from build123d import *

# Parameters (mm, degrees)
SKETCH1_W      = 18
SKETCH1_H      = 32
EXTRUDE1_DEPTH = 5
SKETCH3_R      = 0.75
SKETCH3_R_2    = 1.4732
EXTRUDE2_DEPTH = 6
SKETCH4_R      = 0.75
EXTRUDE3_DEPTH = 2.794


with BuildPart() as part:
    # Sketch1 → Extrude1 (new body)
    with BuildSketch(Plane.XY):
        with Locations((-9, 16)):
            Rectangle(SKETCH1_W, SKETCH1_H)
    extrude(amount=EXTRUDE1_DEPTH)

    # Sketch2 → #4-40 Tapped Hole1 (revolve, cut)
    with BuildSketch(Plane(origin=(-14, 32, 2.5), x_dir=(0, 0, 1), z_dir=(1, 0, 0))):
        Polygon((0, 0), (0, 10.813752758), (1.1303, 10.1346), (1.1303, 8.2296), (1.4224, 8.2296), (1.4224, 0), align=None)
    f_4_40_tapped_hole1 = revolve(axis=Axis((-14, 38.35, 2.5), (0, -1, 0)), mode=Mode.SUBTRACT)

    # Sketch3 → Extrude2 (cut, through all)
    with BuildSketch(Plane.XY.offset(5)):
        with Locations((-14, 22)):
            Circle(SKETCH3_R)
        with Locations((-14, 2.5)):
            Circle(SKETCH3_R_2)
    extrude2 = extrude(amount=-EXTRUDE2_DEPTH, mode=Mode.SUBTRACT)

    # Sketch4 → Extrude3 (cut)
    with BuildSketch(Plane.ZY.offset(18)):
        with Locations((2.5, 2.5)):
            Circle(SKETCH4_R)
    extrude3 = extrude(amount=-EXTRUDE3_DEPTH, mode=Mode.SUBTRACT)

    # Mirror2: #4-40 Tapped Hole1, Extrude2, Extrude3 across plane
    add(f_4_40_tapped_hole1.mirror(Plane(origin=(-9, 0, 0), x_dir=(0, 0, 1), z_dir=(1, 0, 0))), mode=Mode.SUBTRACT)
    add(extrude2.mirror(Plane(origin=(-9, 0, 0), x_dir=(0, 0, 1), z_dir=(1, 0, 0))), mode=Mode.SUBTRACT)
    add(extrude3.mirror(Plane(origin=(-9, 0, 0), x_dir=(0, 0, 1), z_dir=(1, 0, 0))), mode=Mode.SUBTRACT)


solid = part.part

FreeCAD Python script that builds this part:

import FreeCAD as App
import Part
import Sketcher
from FreeCAD import Vector
Q = App.Units.Quantity

doc = App.newDocument("Part")
body = doc.addObject("PartDesign::Body", "Body")

# Sketch on XY plane
sketch1 = body.newObject("Sketcher::SketchObject", "Sketch")
sketch1.AttachmentSupport = (doc.getObject("XY_Plane"), [""])
sketch1.MapMode = "FlatFace"
sketch1.addGeometry(Part.LineSegment(Vector(-18, 32, 0), Vector(-18, 0, 0)), False)
sketch1.addGeometry(Part.LineSegment(Vector(-18, 0, 0), Vector(0, 0, 0)), False)
sketch1.addGeometry(Part.LineSegment(Vector(0, 0, 0), Vector(0, 32, 0)), False)
sketch1.addGeometry(Part.LineSegment(Vector(0, 32, 0), Vector(-18, 32, 0)), False)
sketch1.addConstraint(Sketcher.Constraint("Coincident", 0, 2, 1, 1))
sketch1.addConstraint(Sketcher.Constraint("Coincident", 1, 2, 2, 1))
sketch1.addConstraint(Sketcher.Constraint("Coincident", 2, 2, 3, 1))
sketch1.addConstraint(Sketcher.Constraint("Coincident", 3, 2, 0, 1))
sketch1.addConstraint(Sketcher.Constraint("Vertical", 0))
sketch1.addConstraint(Sketcher.Constraint("Horizontal", 1))
sketch1.addConstraint(Sketcher.Constraint("Vertical", 2))
sketch1.addConstraint(Sketcher.Constraint("Horizontal", 3))
sketch1.addConstraint(Sketcher.Constraint("Coincident", 1, 2, -1, 1))
sketch1.addConstraint(Sketcher.Constraint("DistanceX", 1, 1, 1, 2, 18.0))
sketch1.addConstraint(Sketcher.Constraint("DistanceY", 0, 2, 0, 1, 32.0))
pad1 = body.newObject("PartDesign::Pad", "Pad")
pad1.Profile = sketch1
pad1.Length = 5

# Sketch on YZ plane
sketch2 = body.newObject("Sketcher::SketchObject", "Sketch001")
sketch2.AttachmentSupport = (doc.getObject("YZ_Plane"), [""])
sketch2.MapMode = "FlatFace"
sketch2.AttachmentOffset = App.Placement(Vector(0, 0, -14), App.Rotation())
sketch2.addGeometry(Part.LineSegment(Vector(21.19, 2.5, 0), Vector(32, 2.5, 0)), False)
sketch2.addGeometry(Part.LineSegment(Vector(32, 2.5, 0), Vector(32, 3.92, 0)), False)
sketch2.addGeometry(Part.LineSegment(Vector(32, 3.92, 0), Vector(23.77, 3.92, 0)), False)
sketch2.addGeometry(Part.LineSegment(Vector(23.77, 3.92, 0), Vector(23.77, 3.63, 0)), False)
sketch2.addGeometry(Part.LineSegment(Vector(23.77, 3.63, 0), Vector(21.87, 3.63, 0)), False)
sketch2.addGeometry(Part.LineSegment(Vector(21.87, 3.63, 0), Vector(21.19, 2.5, 0)), False)
sketch2.addGeometry(Part.LineSegment(Vector(32, 2.5, 0), Vector(21.19, 2.5, 0)), True)  # axis
sketch2.addConstraint(Sketcher.Constraint("Coincident", 0, 2, 1, 1))
sketch2.addConstraint(Sketcher.Constraint("Coincident", 1, 2, 2, 1))
sketch2.addConstraint(Sketcher.Constraint("Coincident", 2, 2, 3, 1))
sketch2.addConstraint(Sketcher.Constraint("Coincident", 3, 2, 4, 1))
sketch2.addConstraint(Sketcher.Constraint("Coincident", 4, 2, 5, 1))
sketch2.addConstraint(Sketcher.Constraint("Coincident", 5, 2, 0, 1))
sketch2.addConstraint(Sketcher.Constraint("Horizontal", 0))
sketch2.addConstraint(Sketcher.Constraint("Vertical", 1))
sketch2.addConstraint(Sketcher.Constraint("Horizontal", 2))
sketch2.addConstraint(Sketcher.Constraint("Vertical", 3))
sketch2.addConstraint(Sketcher.Constraint("Horizontal", 4))
sketch2.addConstraint(Sketcher.Constraint("Horizontal", 6))
sketch2.addConstraint(Sketcher.Constraint("Coincident", 6, 1, 0, 2))
sketch2.addConstraint(Sketcher.Constraint("Equal", 0, 6))
sketch2.addConstraint(Sketcher.Constraint("Angle", 5, Q("-121 deg")))
sketch2.addConstraint(Sketcher.Constraint("DistanceX", -1, 1, 0, 2, 32.0))
sketch2.addConstraint(Sketcher.Constraint("DistanceY", -1, 1, 0, 2, 2.5))
sketch2.addConstraint(Sketcher.Constraint("DistanceX", 4, 2, 4, 1, 1.905))
sketch2.addConstraint(Sketcher.Constraint("DistanceX", 2, 2, 2, 1, 8.2296))
sketch2.addConstraint(Sketcher.Constraint("DistanceY", 1, 1, 1, 2, 1.4224))
sketch2.addConstraint(Sketcher.Constraint("DistanceY", 3, 2, 3, 1, 0.2921))
groove = body.newObject("PartDesign::Groove", "Groove")
groove.Profile = sketch2
groove.ReferenceAxis = (sketch2, ["Axis0"])
groove.Angle = 360

# Sketch on XY plane
sketch3 = body.newObject("Sketcher::SketchObject", "Sketch002")
sketch3.AttachmentSupport = (doc.getObject("XY_Plane"), [""])
sketch3.MapMode = "FlatFace"
sketch3.AttachmentOffset = App.Placement(Vector(0, 0, 5), App.Rotation())
sketch3.addGeometry(Part.Circle(Vector(-14, 22, 0), Vector(0, 0, 1), 0.8), False)
sketch3.addGeometry(Part.Circle(Vector(-14, 2.5, 0), Vector(0, 0, 1), 1.5), False)
sketch3.addConstraint(Sketcher.Constraint("Vertical", 0, 3, 1, 3))
sketch3.addConstraint(Sketcher.Constraint("Diameter", 0, 1.5))
sketch3.addConstraint(Sketcher.Constraint("DistanceX", 0, 3, -1, 1, 14.0))
sketch3.addConstraint(Sketcher.Constraint("DistanceY", -1, 1, 0, 3, 22.0))
sketch3.addConstraint(Sketcher.Constraint("Diameter", 1, 2.9464))
sketch3.addConstraint(Sketcher.Constraint("DistanceY", -1, 1, 1, 3, 2.5))
pocket1 = body.newObject("PartDesign::Pocket", "Pocket")
pocket1.Profile = sketch3
pocket1.Type = "ThroughAll"

# Sketch on YZ plane
sketch4 = body.newObject("Sketcher::SketchObject", "Sketch003")
sketch4.AttachmentSupport = (doc.getObject("YZ_Plane"), [""])
sketch4.MapMode = "FlatFace"
sketch4.AttachmentOffset = App.Placement(Vector(0, 0, -18), App.Rotation())
sketch4.addGeometry(Part.Circle(Vector(2.5, 2.5, 0), Vector(0, 0, 1), 0.8), False)
sketch4.addConstraint(Sketcher.Constraint("Diameter", 0, 1.5))
sketch4.addConstraint(Sketcher.Constraint("DistanceX", -1, 1, 0, 3, 2.5))
sketch4.addConstraint(Sketcher.Constraint("DistanceY", -1, 1, 0, 3, 2.5))
pocket2 = body.newObject("PartDesign::Pocket", "Pocket001")
pocket2.Profile = sketch4
pocket2.Length = 2.794
pocket2.Reversed = True
doc.recompute()

datumplane = body.newObject("PartDesign::Plane", "DatumPlane")
datumplane.AttachmentSupport = (doc.getObject("YZ_Plane"), [""])
datumplane.MapMode = "FlatFace"
datumplane.AttachmentOffset = App.Placement(Vector(0, 0, -9), App.Rotation())
mirrored = body.newObject("PartDesign::Mirrored", "Mirrored")
mirrored.Originals = [groove, pocket1, pocket2]
mirrored.MirrorPlane = (datumplane, [""])
body.Tip = mirrored

doc.recompute()
